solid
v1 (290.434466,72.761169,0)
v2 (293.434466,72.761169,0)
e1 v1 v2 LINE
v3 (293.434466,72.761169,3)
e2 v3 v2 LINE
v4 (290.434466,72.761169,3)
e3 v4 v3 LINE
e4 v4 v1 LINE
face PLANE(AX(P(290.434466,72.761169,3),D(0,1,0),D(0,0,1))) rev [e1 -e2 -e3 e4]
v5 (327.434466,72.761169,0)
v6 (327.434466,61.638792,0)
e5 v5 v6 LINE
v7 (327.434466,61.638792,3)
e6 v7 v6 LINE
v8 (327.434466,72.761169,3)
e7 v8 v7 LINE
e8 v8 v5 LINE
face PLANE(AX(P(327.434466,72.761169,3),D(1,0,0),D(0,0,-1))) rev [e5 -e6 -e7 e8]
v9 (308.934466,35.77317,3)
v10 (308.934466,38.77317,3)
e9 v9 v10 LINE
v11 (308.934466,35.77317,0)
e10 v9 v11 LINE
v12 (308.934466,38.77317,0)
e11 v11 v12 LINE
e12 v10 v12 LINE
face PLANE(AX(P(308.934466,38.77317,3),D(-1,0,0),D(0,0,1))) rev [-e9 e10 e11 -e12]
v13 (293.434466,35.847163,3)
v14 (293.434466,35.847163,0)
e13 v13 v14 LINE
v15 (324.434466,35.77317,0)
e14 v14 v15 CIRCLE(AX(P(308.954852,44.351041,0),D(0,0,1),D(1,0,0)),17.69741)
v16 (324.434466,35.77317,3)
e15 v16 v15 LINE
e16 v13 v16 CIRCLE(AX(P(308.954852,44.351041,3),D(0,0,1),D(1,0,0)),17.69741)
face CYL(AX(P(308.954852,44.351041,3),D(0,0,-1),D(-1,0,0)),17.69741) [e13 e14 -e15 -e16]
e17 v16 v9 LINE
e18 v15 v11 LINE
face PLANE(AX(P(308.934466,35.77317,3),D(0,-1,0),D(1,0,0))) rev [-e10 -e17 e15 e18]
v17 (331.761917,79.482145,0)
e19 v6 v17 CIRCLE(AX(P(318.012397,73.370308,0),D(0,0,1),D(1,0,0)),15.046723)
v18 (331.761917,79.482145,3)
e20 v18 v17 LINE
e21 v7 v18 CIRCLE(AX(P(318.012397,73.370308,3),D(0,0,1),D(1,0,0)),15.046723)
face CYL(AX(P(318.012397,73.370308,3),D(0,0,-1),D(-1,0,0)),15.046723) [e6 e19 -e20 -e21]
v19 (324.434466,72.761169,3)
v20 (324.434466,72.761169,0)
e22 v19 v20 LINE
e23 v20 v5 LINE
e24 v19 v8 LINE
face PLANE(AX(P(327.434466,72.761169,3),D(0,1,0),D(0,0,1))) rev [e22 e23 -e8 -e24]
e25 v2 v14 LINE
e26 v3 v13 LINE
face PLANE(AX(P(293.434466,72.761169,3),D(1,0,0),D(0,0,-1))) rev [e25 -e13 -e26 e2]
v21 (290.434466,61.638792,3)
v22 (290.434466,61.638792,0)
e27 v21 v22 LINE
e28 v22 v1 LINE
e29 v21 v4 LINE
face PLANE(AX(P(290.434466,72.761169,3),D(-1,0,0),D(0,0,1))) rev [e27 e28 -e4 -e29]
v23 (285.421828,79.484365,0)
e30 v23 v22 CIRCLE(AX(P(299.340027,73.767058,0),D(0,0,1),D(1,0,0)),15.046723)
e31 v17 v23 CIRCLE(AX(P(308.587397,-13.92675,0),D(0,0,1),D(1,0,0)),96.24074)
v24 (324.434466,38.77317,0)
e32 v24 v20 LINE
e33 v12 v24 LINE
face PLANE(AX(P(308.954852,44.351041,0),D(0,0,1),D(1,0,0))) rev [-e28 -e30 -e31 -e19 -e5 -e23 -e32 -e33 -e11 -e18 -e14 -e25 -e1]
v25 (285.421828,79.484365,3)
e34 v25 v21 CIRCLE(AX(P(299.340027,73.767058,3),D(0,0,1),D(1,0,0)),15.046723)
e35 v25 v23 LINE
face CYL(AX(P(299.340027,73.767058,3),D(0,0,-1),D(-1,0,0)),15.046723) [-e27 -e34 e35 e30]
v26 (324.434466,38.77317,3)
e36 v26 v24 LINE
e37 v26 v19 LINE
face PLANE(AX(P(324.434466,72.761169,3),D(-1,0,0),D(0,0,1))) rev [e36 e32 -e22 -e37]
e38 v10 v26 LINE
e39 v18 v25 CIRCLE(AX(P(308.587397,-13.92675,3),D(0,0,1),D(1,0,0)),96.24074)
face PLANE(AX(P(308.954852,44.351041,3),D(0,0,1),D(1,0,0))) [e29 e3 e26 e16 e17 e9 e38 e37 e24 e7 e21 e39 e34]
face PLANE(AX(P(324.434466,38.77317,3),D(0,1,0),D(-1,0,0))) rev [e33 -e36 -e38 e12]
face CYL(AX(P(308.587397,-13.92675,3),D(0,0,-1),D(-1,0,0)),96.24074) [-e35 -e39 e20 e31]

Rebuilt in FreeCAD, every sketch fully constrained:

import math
import FreeCAD as App
import Part
import Sketcher
from FreeCAD import Vector

doc = App.newDocument("Part")
body = doc.addObject("PartDesign::Body", "Body")

# Sketch on XY plane
sketch1 = body.newObject("Sketcher::SketchObject", "Sketch")
sketch1.AttachmentSupport = (doc.getObject("XY_Plane"), [""])
sketch1.MapMode = "FlatFace"
sketch1.addGeometry([
    Part.LineSegment(Vector(327.4, 72.8, 0), Vector(327.4, 61.6, 0)),  # 0
    Part.ArcOfCircle(Part.Circle(Vector(318, 73.4, 0), Vector(0, 0, 1), 15), math.radians(-51), math.radians(24)),  # 1
    Part.ArcOfCircle(Part.Circle(Vector(308.6, -13.9, 0), Vector(0, 0, 1), 96.2), math.radians(76), math.radians(104)),  # 2
    Part.ArcOfCircle(Part.Circle(Vector(299.3, 73.8, 0), Vector(0, 0, 1), 15), math.radians(158), math.radians(234)),  # 3
    Part.LineSegment(Vector(290.4, 61.6, 0), Vector(290.4, 72.8, 0)),  # 4
    Part.LineSegment(Vector(290.4, 72.8, 0), Vector(293.4, 72.8, 0)),  # 5
    Part.LineSegment(Vector(293.4, 72.8, 0), Vector(293.4, 35.8, 0)),  # 6
    Part.ArcOfCircle(Part.Circle(Vector(309, 44.4, 0), Vector(0, 0, 1), 17.7), math.radians(-151), math.radians(-29)),  # 7
    Part.LineSegment(Vector(324.4, 35.8, 0), Vector(308.9, 35.8, 0)),  # 8
    Part.LineSegment(Vector(308.9, 35.8, 0), Vector(308.9, 38.8, 0)),  # 9
    Part.LineSegment(Vector(308.9, 38.8, 0), Vector(324.4, 38.8, 0)),  # 10
    Part.LineSegment(Vector(324.4, 38.8, 0), Vector(324.4, 72.8, 0)),  # 11
    Part.LineSegment(Vector(324.4, 72.8, 0), Vector(327.4, 72.8, 0)),  # 12
], False)
sketch1.addConstraint([
    Sketcher.Constraint("Coincident", 0, 2, 1, 1),
    Sketcher.Constraint("Coincident", 1, 2, 2, 1),
    Sketcher.Constraint("Coincident", 2, 2, 3, 1),
    Sketcher.Constraint("Coincident", 3, 2, 4, 1),
    Sketcher.Constraint("Coincident", 4, 2, 5, 1),
    Sketcher.Constraint("Coincident", 5, 2, 6, 1),
    Sketcher.Constraint("Coincident", 6, 2, 7, 1),
    Sketcher.Constraint("Coincident", 7, 2, 8, 1),
    Sketcher.Constraint("Coincident", 8, 2, 9, 1),
    Sketcher.Constraint("Coincident", 9, 2, 10, 1),
    Sketcher.Constraint("Coincident", 10, 2, 11, 1),
    Sketcher.Constraint("Coincident", 11, 2, 12, 1),
    Sketcher.Constraint("Coincident", 12, 2, 0, 1),
    Sketcher.Constraint("Vertical", 0),
    Sketcher.Constraint("Vertical", 4),
    Sketcher.Constraint("Horizontal", 5),
    Sketcher.Constraint("Vertical", 6),
    Sketcher.Constraint("Horizontal", 8),
    Sketcher.Constraint("Vertical", 9),
    Sketcher.Constraint("Horizontal", 10),
    Sketcher.Constraint("Vertical", 11),
    Sketcher.Constraint("Horizontal", 12),
    Sketcher.Constraint("Equal", 1, 3),
    Sketcher.Constraint("Horizontal", 0, 2, 3, 2),
    Sketcher.Constraint("Horizontal", 5, 2, 11, 2),
    Sketcher.Constraint("Vertical", 7, 2, 10, 2),
    Sketcher.Constraint("Equal", 5, 12),
    Sketcher.Constraint("Equal", 12, 9),
    Sketcher.Constraint("DistanceX", 5, 1, 5, 2, 3.0),
    Sketcher.Constraint("DistanceX", 8, 2, 8, 1, 15.5),
    Sketcher.Constraint("DistanceX", 3, 2, 0, 2, 37.0),
    Sketcher.Constraint("DistanceY", 11, 1, 11, 2, 33.987999),
    Sketcher.Constraint("Radius", 2, 96.24074),
    Sketcher.Constraint("Radius", 7, 17.69741),
    Sketcher.Constraint("Radius", 1, 15.046723),
    Sketcher.Constraint("DistanceX", 2, 3, 1, 3, 9.425),
    Sketcher.Constraint("DistanceX", 2, 2, 3, 3, 13.918199),
    Sketcher.Constraint("DistanceY", 0, 2, 0, 1, 11.122377),
    Sketcher.Constraint("DistanceY", 6, 2, 6, 1, 36.914006),
    Sketcher.Constraint("DistanceY", -1, 1, 1, 3, 73.370308),
    Sketcher.Constraint("DistanceY", 2, 3, -1, 1, 13.92675),
    Sketcher.Constraint("DistanceX", -1, 1, 7, 3, 308.954852),
    Sketcher.Constraint("DistanceY", -1, 1, 7, 3, 44.351041),
])
pad1 = body.newObject("PartDesign::Pad", "Pad")
pad1.Profile = sketch1
pad1.Length = 3

doc.recompute()
